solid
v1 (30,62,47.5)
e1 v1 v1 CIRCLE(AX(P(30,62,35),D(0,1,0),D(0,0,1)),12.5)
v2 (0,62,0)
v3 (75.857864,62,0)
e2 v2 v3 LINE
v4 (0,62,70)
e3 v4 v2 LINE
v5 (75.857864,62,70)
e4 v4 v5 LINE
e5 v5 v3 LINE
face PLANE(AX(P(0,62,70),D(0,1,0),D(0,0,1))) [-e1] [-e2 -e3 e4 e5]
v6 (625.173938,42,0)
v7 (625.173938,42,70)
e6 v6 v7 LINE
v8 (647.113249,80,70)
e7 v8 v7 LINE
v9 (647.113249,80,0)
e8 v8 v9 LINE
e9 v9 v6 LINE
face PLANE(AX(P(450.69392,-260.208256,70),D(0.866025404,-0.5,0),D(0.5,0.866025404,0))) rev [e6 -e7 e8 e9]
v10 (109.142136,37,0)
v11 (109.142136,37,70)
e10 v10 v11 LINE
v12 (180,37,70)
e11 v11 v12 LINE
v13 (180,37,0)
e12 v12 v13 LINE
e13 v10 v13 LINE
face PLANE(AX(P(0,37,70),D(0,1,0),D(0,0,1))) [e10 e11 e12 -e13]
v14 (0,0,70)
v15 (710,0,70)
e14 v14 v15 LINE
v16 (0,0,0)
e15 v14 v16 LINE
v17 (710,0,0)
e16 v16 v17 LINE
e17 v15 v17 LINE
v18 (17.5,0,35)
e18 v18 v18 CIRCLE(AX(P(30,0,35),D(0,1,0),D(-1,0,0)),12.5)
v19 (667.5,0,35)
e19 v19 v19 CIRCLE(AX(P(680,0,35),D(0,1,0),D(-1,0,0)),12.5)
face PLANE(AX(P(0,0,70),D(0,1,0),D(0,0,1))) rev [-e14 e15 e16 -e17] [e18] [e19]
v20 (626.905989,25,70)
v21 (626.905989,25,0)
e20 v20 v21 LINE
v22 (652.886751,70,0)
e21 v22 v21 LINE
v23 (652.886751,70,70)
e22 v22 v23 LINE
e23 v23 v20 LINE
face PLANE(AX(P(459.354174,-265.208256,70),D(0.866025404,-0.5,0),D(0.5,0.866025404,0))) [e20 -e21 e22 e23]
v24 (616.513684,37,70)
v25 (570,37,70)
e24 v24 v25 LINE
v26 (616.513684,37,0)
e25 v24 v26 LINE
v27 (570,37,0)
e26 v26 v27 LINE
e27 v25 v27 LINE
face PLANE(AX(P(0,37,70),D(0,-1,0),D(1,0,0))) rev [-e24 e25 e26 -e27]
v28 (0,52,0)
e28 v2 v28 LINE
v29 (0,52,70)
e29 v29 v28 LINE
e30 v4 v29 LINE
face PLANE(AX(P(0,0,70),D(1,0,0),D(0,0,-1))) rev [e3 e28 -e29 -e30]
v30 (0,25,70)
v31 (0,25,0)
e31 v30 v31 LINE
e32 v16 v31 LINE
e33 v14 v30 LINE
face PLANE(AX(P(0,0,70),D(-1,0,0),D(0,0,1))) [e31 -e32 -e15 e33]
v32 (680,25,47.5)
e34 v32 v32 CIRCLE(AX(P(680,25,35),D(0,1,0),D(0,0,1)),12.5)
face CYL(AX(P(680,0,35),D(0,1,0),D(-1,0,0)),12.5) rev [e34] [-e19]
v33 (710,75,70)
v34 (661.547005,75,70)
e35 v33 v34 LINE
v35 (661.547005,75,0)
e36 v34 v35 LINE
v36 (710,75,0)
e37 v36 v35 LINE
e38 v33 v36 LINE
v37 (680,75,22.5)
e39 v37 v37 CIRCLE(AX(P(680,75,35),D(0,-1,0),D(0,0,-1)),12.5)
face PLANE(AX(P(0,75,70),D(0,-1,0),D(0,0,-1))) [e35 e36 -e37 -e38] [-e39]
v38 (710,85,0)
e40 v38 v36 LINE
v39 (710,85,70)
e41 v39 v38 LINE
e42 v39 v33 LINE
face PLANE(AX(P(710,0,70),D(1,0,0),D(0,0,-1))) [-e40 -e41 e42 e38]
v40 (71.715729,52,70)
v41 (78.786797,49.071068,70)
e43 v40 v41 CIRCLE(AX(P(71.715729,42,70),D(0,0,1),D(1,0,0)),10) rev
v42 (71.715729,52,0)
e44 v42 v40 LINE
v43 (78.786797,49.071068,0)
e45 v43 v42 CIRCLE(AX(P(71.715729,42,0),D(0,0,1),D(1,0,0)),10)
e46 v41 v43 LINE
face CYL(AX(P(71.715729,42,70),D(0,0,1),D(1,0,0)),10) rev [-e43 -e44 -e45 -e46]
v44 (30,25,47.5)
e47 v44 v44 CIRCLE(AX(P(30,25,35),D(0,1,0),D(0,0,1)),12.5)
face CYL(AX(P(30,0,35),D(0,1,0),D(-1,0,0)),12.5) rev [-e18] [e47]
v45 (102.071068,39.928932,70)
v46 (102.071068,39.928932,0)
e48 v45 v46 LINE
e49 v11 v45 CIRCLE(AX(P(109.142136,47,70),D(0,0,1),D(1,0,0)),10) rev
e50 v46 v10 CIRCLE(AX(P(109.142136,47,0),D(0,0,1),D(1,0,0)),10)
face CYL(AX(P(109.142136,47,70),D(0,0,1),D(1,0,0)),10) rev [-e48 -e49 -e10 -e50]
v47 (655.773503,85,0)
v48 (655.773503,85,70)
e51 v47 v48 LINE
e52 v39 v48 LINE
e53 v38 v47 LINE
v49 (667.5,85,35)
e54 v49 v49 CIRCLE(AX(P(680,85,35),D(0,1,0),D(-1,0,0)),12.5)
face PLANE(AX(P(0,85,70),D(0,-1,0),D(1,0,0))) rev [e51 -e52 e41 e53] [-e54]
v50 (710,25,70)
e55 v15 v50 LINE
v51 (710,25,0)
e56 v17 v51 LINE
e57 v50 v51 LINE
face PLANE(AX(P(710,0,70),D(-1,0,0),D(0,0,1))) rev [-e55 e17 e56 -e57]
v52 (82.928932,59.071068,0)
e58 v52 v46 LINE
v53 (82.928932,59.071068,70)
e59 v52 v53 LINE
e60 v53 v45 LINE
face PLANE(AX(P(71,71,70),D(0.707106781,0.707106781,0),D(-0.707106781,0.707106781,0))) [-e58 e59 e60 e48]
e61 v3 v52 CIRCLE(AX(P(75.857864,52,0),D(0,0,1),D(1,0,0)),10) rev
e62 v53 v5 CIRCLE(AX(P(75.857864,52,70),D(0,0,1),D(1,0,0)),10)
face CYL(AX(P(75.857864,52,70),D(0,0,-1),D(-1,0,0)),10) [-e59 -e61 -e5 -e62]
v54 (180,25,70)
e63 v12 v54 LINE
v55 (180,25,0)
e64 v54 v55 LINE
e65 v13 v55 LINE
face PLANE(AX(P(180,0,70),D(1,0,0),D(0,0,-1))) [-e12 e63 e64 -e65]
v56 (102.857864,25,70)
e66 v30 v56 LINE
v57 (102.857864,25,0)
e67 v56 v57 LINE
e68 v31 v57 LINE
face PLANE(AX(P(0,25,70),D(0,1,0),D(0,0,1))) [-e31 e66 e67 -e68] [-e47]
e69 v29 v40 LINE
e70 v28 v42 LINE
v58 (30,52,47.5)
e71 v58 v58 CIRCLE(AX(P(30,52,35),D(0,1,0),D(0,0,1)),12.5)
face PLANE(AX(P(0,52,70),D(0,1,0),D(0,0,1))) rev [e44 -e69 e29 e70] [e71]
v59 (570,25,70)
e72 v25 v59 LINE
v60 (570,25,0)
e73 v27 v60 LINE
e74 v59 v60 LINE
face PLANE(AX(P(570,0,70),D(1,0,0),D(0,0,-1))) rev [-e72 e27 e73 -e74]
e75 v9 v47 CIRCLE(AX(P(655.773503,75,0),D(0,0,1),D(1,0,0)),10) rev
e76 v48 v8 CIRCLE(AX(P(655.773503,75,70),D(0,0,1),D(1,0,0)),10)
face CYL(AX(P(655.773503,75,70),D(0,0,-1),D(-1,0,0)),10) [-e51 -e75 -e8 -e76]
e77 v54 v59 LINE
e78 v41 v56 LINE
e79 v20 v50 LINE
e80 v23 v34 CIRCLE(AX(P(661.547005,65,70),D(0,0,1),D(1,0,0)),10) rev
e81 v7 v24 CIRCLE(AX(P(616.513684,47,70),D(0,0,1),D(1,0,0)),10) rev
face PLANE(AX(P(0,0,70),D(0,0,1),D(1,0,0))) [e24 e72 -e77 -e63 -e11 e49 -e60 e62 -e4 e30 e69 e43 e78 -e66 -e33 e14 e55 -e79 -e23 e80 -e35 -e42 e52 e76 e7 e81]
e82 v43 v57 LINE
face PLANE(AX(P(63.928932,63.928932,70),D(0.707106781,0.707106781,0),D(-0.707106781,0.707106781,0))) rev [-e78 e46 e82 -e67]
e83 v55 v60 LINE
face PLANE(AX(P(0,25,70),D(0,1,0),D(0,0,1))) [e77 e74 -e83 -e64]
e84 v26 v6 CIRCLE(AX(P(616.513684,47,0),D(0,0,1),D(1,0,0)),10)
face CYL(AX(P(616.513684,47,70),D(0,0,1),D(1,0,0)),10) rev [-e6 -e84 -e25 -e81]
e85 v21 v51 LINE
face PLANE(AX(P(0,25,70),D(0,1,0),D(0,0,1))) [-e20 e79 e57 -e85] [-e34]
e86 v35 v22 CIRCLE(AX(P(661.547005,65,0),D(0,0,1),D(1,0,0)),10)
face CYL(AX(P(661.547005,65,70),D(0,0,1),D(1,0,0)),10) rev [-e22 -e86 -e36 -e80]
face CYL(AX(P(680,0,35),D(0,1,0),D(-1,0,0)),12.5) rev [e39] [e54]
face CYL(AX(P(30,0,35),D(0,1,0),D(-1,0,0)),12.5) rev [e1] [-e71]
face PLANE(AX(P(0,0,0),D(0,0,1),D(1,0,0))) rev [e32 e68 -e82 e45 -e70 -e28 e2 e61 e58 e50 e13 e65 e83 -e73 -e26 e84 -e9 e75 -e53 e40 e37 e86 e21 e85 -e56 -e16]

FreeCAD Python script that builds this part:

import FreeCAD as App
import Part
import Sketcher
from FreeCAD import Vector
Q = App.Units.Quantity


def edges_at(feature, points):
    """Names of the edges that pass closest to the given points."""
    edges = feature.Shape.Edges
    near = lambda p: min(range(len(edges)), key=lambda i: edges[i].distToShape(Part.Vertex(*p))[0])
    return sorted({f"Edge{near(p) + 1}" for p in points})


def add_polygon(sketch, points):
    """Adds a closed chain of lines whose ends are joined by coincident constraints."""
    first, n = sketch.GeometryCount, len(points)
    for a, b in zip(points, points[1:] + points[:1]):
        sketch.addGeometry(Part.LineSegment(App.Vector(*a, 0), App.Vector(*b, 0)), False)
    for i in range(n):
        sketch.addConstraint(Sketcher.Constraint("Coincident", first + i, 2, first + (i + 1) % n, 1))

doc = App.newDocument("Part")
params = doc.addObject("Spreadsheet::Sheet", "Params")
for row, (alias, value) in enumerate([
    ("sketch1_width", "710 mm"),
    ("sketch1_width2", "60 mm"),
    ("sketch1_width3", "390 mm"),
    ("sketch1_width4", "75 mm"),
    ("sketch1_width5", "80 mm"),
    ("pad1_length", "70 mm"),
    ("fillet_radius", "10 mm"),
    ("fillet2_radius", "10 mm"),
    ("sketch2_diameter", "25 mm"),
], start=1):
    params.set(f"A{row}", alias)
    params.set(f"B{row}", "=" + value)
    params.setAlias(f"B{row}", alias)

body = doc.addObject("PartDesign::Body", "Body")

sketch1 = doc.addObject("Sketcher::SketchObject", "Sketch")
body.addObject(sketch1)
sketch1.AttachmentSupport = (doc.XY_Plane, [""])
sketch1.MapMode = "FlatFace"
add_polygon(sketch1, [(0, 62), (0, 52), (75.857864, 52), (102.857864, 25), (0, 25), (0, 0), (710, 0), (710, 25), (626.905989, 25), (655.773503, 75), (710, 75), (710, 85), (650, 85), (622.287187, 37), (570, 37), (570, 25), (180, 25), (180, 37), (105, 37), (80, 62)])
sketch1.addConstraint([
    Sketcher.Constraint("Vertical", 0),
    Sketcher.Constraint("Horizontal", 1),
    Sketcher.Constraint("Horizontal", 3),
    Sketcher.Constraint("Vertical", 4),
    Sketcher.Constraint("Horizontal", 5),
    Sketcher.Constraint("Vertical", 6),
    Sketcher.Constraint("Horizontal", 7),
    Sketcher.Constraint("Horizontal", 9),
    Sketcher.Constraint("Vertical", 10),
    Sketcher.Constraint("Horizontal", 11),
    Sketcher.Constraint("Horizontal", 13),
    Sketcher.Constraint("Vertical", 14),
    Sketcher.Constraint("Horizontal", 15),
    Sketcher.Constraint("Vertical", 16),
    Sketcher.Constraint("Horizontal", 17),
    Sketcher.Constraint("Horizontal", 19),
    Sketcher.Constraint("Coincident", 4, 2, -1, 1),
    Sketcher.Constraint("PointOnObject", 0, 2, -2),
    Sketcher.Constraint("Parallel", 8, 12),
    Sketcher.Constraint("Parallel", 2, 18),
    Sketcher.Constraint("Horizontal", 3, 2, 6, 2),
    Sketcher.Constraint("Horizontal", 7, 2, 14, 2),
    Sketcher.Constraint("Horizontal", 13, 2, 16, 2),
    Sketcher.Constraint("Vertical", 6, 2, 9, 2),
    Sketcher.Constraint("Equal", 0, 10),
    Sketcher.Constraint("DistanceX", 5, 1, 5, 2, Q("710 mm")),
    Sketcher.Constraint("DistanceX", 11, 2, 11, 1, Q("60 mm")),
    Sketcher.Constraint("DistanceX", 15, 2, 15, 1, Q("390 mm")),
    Sketcher.Constraint("DistanceX", 17, 2, 17, 1, Q("75 mm")),
    Sketcher.Constraint("DistanceX", 19, 2, 19, 1, Q("80 mm")),
    Sketcher.Constraint("DistanceY", 0, 2, 0, 1, Q("10 mm")),
    Sketcher.Constraint("DistanceY", 4, 2, 4, 1, Q("25 mm")),
    Sketcher.Constraint("DistanceY", 14, 2, 14, 1, Q("12 mm")),
    Sketcher.Constraint("Angle", 2, Q("-45 deg")),
    Sketcher.Constraint("Angle", 8, Q("60 deg")),
    Sketcher.Constraint("DistanceY", -1, 1, 0, 2, Q("52 mm")),
    Sketcher.Constraint("DistanceY", -1, 1, 8, 2, Q("75 mm")),
    Sketcher.Constraint("DistanceX", 7, 2, 7, 1, Q("83.094011 mm")),
    Sketcher.Constraint("DistanceX", 1, 1, 1, 2, Q("75.857864 mm")),
])
sketch1.setExpression("Constraints[45]", "Params.sketch1_width")
sketch1.setExpression("Constraints[46]", "Params.sketch1_width2")
sketch1.setExpression("Constraints[47]", "Params.sketch1_width3")
sketch1.setExpression("Constraints[48]", "Params.sketch1_width4")
sketch1.setExpression("Constraints[49]", "Params.sketch1_width5")
pad1 = doc.addObject("PartDesign::Pad", "Pad")
body.addObject(pad1)
pad1.Profile = sketch1
pad1.setExpression("Length", "Params.pad1_length")
doc.recompute()

fillet = doc.addObject("PartDesign::Fillet", "Fillet")
body.addObject(fillet)
fillet.Base = (pad1, edges_at(pad1, [
    (80, 62, 35),
    (105, 37, 35),
    (650, 85, 35),
    (622.287, 37, 35),
]))
fillet.setExpression("Radius", "Params.fillet_radius")
doc.recompute()

fillet2 = doc.addObject("PartDesign::Fillet", "Fillet001")
body.addObject(fillet2)
fillet2.Base = (fillet, edges_at(fillet, [(75.858, 52, 35), (655.774, 75, 35)]))
fillet2.setExpression("Radius", "Params.fillet2_radius")

sketch2 = doc.addObject("Sketcher::SketchObject", "Sketch001")
body.addObject(sketch2)
sketch2.AttachmentSupport = (doc.XZ_Plane, [""])
sketch2.MapMode = "FlatFace"
sketch2.AttachmentOffset = App.Placement(Vector(0, 0, -85), App.Rotation())
sketch2.addGeometry([
    Part.Circle(Vector(680, 35, 0), Vector(0, 0, 1), 12.5),
    Part.Circle(Vector(30, 35, 0), Vector(0, 0, 1), 12.5),
], False)
sketch2.addConstraint([
    Sketcher.Constraint("Equal", 0, 1),
    Sketcher.Constraint("Horizontal", 0, 3, 1, 3),
    Sketcher.Constraint("Diameter", 0, Q("25 mm")),
    Sketcher.Constraint("DistanceX", -1, 1, 0, 3, Q("680 mm")),
    Sketcher.Constraint("DistanceY", -1, 1, 0, 3, Q("35 mm")),
    Sketcher.Constraint("DistanceX", -1, 1, 1, 3, Q("30 mm")),
])
sketch2.setExpression("Constraints[2]", "Params.sketch2_diameter")
pocket1 = doc.addObject("PartDesign::Pocket", "Pocket")
body.addObject(pocket1)
pocket1.Profile = sketch2
pocket1.Type = "ThroughAll"
pocket1.Reversed = True

doc.recompute()
